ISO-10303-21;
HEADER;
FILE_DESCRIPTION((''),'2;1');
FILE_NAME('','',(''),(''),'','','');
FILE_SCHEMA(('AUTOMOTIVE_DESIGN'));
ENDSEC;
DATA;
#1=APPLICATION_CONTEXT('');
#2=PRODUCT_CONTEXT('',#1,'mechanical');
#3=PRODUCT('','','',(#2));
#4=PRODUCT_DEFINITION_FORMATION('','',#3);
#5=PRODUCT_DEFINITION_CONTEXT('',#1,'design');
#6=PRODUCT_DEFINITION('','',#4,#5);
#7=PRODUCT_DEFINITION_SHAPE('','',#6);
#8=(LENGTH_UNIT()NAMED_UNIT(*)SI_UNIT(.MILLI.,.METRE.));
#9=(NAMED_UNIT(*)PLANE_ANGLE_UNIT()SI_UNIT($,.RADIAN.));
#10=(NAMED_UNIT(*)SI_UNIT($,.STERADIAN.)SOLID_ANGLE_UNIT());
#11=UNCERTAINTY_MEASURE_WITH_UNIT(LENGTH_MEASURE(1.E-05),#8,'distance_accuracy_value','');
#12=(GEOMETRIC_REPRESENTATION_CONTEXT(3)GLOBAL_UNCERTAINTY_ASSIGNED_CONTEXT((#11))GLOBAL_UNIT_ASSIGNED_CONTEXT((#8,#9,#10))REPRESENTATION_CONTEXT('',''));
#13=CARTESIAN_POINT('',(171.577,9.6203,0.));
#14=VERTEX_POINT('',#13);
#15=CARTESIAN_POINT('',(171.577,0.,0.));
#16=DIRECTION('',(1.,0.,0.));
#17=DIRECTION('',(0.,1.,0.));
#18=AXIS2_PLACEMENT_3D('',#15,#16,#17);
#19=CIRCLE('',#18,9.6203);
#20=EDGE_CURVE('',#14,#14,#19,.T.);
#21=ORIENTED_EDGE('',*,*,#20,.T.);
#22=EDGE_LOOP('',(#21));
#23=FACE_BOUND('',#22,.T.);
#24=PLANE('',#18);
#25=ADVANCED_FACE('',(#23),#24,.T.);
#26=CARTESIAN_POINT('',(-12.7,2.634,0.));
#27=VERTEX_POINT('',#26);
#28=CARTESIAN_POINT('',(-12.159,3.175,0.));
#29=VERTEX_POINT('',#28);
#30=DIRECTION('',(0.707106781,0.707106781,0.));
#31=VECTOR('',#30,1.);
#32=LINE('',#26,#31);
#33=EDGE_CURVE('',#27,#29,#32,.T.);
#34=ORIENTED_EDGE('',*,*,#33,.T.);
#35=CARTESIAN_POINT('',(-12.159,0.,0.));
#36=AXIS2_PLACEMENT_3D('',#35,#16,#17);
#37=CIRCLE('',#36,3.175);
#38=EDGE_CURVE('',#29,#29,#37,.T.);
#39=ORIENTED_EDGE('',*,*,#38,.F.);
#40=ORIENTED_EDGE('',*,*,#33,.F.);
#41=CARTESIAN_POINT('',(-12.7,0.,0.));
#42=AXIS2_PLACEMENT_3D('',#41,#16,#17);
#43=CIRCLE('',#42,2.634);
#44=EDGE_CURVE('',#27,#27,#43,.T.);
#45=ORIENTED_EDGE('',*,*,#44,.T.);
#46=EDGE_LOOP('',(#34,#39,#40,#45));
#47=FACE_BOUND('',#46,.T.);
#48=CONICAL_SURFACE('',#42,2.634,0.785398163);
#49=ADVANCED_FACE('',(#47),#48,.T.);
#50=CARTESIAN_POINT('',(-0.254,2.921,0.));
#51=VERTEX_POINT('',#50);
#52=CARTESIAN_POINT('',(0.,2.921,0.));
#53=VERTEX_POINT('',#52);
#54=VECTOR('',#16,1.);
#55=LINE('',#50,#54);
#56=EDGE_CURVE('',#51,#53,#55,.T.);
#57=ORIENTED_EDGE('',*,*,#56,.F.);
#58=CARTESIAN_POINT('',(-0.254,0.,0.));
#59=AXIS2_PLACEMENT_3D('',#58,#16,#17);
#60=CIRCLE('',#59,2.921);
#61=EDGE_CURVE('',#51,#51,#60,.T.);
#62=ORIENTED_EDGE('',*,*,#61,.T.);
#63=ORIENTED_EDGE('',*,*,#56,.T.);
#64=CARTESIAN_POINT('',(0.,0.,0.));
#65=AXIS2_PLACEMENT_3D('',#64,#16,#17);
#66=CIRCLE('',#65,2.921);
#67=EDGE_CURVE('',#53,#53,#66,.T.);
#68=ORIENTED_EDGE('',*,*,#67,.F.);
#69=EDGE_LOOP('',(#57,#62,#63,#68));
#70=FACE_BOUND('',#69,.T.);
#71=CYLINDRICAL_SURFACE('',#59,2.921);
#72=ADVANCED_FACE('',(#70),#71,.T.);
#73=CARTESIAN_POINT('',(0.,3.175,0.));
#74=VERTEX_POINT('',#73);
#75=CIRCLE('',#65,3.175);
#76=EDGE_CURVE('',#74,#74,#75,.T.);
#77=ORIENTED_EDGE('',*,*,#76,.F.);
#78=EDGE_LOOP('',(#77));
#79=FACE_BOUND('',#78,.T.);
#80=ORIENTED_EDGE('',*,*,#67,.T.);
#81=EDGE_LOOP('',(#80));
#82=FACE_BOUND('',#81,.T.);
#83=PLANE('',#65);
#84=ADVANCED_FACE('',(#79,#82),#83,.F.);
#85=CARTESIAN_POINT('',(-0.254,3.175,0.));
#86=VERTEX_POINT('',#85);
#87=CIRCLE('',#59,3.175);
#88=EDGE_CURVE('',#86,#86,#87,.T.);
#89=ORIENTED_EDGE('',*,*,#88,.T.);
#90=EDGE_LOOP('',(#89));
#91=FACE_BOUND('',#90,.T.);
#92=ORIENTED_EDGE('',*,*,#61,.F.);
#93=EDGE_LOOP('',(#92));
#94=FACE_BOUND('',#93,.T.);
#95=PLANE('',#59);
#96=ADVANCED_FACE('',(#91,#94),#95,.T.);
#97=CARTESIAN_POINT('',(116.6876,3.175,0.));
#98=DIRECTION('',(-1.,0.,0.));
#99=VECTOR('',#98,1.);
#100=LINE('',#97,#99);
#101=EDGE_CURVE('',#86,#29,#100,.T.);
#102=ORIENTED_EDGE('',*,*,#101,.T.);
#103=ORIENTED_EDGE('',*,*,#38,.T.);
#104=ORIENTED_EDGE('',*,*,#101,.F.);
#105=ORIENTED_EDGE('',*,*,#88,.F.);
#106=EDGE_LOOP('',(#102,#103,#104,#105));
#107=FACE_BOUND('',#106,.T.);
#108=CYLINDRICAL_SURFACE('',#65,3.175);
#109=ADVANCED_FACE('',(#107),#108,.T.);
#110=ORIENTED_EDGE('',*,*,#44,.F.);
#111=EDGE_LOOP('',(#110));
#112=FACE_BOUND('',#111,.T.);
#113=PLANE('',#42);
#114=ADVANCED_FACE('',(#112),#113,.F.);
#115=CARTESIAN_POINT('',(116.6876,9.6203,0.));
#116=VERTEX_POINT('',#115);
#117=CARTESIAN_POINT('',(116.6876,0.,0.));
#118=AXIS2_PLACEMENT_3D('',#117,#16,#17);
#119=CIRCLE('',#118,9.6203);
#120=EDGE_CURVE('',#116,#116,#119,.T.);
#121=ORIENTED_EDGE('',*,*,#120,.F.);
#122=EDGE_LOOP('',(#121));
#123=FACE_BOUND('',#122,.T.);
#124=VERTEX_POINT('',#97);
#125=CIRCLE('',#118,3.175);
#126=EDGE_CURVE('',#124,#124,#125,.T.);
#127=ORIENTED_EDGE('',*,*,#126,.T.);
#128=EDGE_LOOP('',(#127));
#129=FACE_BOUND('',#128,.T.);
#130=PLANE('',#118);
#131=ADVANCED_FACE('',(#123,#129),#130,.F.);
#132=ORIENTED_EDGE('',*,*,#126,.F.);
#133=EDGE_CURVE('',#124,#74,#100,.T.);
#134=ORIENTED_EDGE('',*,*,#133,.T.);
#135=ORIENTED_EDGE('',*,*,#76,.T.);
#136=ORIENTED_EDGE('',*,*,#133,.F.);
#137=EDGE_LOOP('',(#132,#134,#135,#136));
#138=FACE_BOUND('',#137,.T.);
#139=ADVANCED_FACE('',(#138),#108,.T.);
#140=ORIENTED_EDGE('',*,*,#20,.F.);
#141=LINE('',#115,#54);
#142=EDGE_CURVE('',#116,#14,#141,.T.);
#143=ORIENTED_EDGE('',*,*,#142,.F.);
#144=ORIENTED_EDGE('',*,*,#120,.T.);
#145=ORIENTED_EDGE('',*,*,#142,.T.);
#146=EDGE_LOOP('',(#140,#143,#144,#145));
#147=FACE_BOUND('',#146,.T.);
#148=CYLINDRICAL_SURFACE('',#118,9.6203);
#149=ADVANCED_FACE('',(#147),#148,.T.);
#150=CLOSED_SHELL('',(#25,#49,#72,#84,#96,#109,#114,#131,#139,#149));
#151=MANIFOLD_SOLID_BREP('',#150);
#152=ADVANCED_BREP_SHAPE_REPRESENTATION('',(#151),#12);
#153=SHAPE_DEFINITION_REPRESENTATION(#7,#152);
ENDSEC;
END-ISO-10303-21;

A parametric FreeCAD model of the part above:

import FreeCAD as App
import Part
import Sketcher
from FreeCAD import Vector
Q = App.Units.Quantity

doc = App.newDocument("Part")
body = doc.addObject("PartDesign::Body", "Body")

# Sketch on XY plane
sketch1 = body.newObject("Sketcher::SketchObject", "Sketch")
sketch1.AttachmentSupport = (doc.getObject("XY_Plane"), [""])
sketch1.MapMode = "FlatFace"
sketch1.addGeometry([
    Part.LineSegment(Vector(0, 0, 0), Vector(171.577, 0, 0)),  # 0
    Part.LineSegment(Vector(171.577, 0, 0), Vector(171.577, 9.6203, 0)),  # 1
    Part.LineSegment(Vector(171.577, 9.6203, 0), Vector(116.6876, 9.6203, 0)),  # 2
    Part.LineSegment(Vector(116.6876, 9.6203, 0), Vector(116.6876, 3.175, 0)),  # 3
    Part.LineSegment(Vector(116.6876, 3.175, 0), Vector(0, 3.175, 0)),  # 4
    Part.LineSegment(Vector(0, 3.175, 0), Vector(0, 0, 0)),  # 5
], False)
sketch1.addConstraint([
    Sketcher.Constraint("Coincident", 0, 2, 1, 1),
    Sketcher.Constraint("Coincident", 1, 2, 2, 1),
    Sketcher.Constraint("Coincident", 2, 2, 3, 1),
    Sketcher.Constraint("Coincident", 3, 2, 4, 1),
    Sketcher.Constraint("Coincident", 4, 2, 5, 1),
    Sketcher.Constraint("Coincident", 5, 2, 0, 1),
    Sketcher.Constraint("Horizontal", 0),
    Sketcher.Constraint("Vertical", 1),
    Sketcher.Constraint("Horizontal", 2),
    Sketcher.Constraint("Vertical", 3),
    Sketcher.Constraint("Horizontal", 4),
    Sketcher.Constraint("Vertical", 5),
    Sketcher.Constraint("Coincident", 5, 2, -1, 1),
    Sketcher.Constraint("DistanceX", 0, 1, 0, 2, Q("6.755 in")),
    Sketcher.Constraint("DistanceX", 2, 2, 2, 1, Q("2.161 in")),
    Sketcher.Constraint("DistanceY", 5, 2, 5, 1, Q("0.125 in")),
    Sketcher.Constraint("DistanceY", 1, 1, 1, 2, 9.6203),
])
revolution = body.newObject("PartDesign::Revolution", "Revolution")
revolution.Profile = sketch1
revolution.ReferenceAxis = (sketch1, ["H_Axis"])
revolution.Angle = 360

# Sketch on XY plane
sketch2 = body.newObject("Sketcher::SketchObject", "Sketch001")
sketch2.AttachmentSupport = (doc.getObject("XY_Plane"), [""])
sketch2.MapMode = "FlatFace"
sketch2.addGeometry([
    Part.LineSegment(Vector(-12.7, 0, 0), Vector(0, 0, 0)),  # 0
    Part.LineSegment(Vector(0, 0, 0), Vector(0, 3.175, 0)),  # 1
    Part.LineSegment(Vector(0, 3.175, 0), Vector(-12.159, 3.175, 0)),  # 2
    Part.LineSegment(Vector(-12.159, 3.175, 0), Vector(-12.7, 2.634, 0)),  # 3
    Part.LineSegment(Vector(-12.7, 2.634, 0), Vector(-12.7, 0, 0)),  # 4
], False)
sketch2.addConstraint([
    Sketcher.Constraint("Coincident", 0, 2, 1, 1),
    Sketcher.Constraint("Coincident", 1, 2, 2, 1),
    Sketcher.Constraint("Coincident", 2, 2, 3, 1),
    Sketcher.Constraint("Coincident", 3, 2, 4, 1),
    Sketcher.Constraint("Coincident", 4, 2, 0, 1),
    Sketcher.Constraint("Horizontal", 0),
    Sketcher.Constraint("Vertical", 1),
    Sketcher.Constraint("Horizontal", 2),
    Sketcher.Constraint("Vertical", 4),
    Sketcher.Constraint("Coincident", 0, 2, -1, 1),
    Sketcher.Constraint("DistanceX", 0, 1, 0, 2, Q("0.5 in")),
    Sketcher.Constraint("Angle", 3, Q("-135 deg")),
    Sketcher.Constraint("DistanceY", 1, 1, 1, 2, Q("0.125 in")),
    Sketcher.Constraint("DistanceX", 2, 2, 2, 1, Q("0.4787 in")),
])
revolution2 = body.newObject("PartDesign::Revolution", "Revolution001")
revolution2.Profile = sketch2
revolution2.ReferenceAxis = (sketch2, ["H_Axis"])
revolution2.Angle = 360

# Sketch on XY plane
sketch3 = body.newObject("Sketcher::SketchObject", "Sketch002")
sketch3.AttachmentSupport = (doc.getObject("XY_Plane"), [""])
sketch3.MapMode = "FlatFace"
sketch3.addGeometry([
    Part.LineSegment(Vector(-0.254, 3.429, 0), Vector(-0.254, 2.921, 0)),
    Part.LineSegment(Vector(-0.254, 2.921, 0), Vector(0, 2.921, 0)),
    Part.LineSegment(Vector(0, 2.921, 0), Vector(0, 3.429, 0)),
    Part.LineSegment(Vector(0, 3.429, 0), Vector(-0.254, 3.429, 0)),
], False)
sketch3.addConstraint([
    Sketcher.Constraint("Coincident", 0, 2, 1, 1),
    Sketcher.Constraint("Coincident", 1, 2, 2, 1),
    Sketcher.Constraint("Coincident", 2, 2, 3, 1),
    Sketcher.Constraint("Coincident", 3, 2, 0, 1),
    Sketcher.Constraint("Vertical", 0),
    Sketcher.Constraint("Horizontal", 1),
    Sketcher.Constraint("Vertical", 2),
    Sketcher.Constraint("Horizontal", 3),
    Sketcher.Constraint("PointOnObject", 1, 2, -2),
    Sketcher.Constraint("DistanceX", 1, 1, 1, 2, Q("0.01 in")),
    Sketcher.Constraint("DistanceY", 0, 2, 0, 1, Q("0.02 in")),
    Sketcher.Constraint("DistanceY", -1, 1, 0, 2, Q("0.115 in")),
])
groove = body.newObject("PartDesign::Groove", "Groove")
groove.Profile = sketch3
groove.ReferenceAxis = (sketch3, ["H_Axis"])
groove.Angle = 360

doc.recompute()
